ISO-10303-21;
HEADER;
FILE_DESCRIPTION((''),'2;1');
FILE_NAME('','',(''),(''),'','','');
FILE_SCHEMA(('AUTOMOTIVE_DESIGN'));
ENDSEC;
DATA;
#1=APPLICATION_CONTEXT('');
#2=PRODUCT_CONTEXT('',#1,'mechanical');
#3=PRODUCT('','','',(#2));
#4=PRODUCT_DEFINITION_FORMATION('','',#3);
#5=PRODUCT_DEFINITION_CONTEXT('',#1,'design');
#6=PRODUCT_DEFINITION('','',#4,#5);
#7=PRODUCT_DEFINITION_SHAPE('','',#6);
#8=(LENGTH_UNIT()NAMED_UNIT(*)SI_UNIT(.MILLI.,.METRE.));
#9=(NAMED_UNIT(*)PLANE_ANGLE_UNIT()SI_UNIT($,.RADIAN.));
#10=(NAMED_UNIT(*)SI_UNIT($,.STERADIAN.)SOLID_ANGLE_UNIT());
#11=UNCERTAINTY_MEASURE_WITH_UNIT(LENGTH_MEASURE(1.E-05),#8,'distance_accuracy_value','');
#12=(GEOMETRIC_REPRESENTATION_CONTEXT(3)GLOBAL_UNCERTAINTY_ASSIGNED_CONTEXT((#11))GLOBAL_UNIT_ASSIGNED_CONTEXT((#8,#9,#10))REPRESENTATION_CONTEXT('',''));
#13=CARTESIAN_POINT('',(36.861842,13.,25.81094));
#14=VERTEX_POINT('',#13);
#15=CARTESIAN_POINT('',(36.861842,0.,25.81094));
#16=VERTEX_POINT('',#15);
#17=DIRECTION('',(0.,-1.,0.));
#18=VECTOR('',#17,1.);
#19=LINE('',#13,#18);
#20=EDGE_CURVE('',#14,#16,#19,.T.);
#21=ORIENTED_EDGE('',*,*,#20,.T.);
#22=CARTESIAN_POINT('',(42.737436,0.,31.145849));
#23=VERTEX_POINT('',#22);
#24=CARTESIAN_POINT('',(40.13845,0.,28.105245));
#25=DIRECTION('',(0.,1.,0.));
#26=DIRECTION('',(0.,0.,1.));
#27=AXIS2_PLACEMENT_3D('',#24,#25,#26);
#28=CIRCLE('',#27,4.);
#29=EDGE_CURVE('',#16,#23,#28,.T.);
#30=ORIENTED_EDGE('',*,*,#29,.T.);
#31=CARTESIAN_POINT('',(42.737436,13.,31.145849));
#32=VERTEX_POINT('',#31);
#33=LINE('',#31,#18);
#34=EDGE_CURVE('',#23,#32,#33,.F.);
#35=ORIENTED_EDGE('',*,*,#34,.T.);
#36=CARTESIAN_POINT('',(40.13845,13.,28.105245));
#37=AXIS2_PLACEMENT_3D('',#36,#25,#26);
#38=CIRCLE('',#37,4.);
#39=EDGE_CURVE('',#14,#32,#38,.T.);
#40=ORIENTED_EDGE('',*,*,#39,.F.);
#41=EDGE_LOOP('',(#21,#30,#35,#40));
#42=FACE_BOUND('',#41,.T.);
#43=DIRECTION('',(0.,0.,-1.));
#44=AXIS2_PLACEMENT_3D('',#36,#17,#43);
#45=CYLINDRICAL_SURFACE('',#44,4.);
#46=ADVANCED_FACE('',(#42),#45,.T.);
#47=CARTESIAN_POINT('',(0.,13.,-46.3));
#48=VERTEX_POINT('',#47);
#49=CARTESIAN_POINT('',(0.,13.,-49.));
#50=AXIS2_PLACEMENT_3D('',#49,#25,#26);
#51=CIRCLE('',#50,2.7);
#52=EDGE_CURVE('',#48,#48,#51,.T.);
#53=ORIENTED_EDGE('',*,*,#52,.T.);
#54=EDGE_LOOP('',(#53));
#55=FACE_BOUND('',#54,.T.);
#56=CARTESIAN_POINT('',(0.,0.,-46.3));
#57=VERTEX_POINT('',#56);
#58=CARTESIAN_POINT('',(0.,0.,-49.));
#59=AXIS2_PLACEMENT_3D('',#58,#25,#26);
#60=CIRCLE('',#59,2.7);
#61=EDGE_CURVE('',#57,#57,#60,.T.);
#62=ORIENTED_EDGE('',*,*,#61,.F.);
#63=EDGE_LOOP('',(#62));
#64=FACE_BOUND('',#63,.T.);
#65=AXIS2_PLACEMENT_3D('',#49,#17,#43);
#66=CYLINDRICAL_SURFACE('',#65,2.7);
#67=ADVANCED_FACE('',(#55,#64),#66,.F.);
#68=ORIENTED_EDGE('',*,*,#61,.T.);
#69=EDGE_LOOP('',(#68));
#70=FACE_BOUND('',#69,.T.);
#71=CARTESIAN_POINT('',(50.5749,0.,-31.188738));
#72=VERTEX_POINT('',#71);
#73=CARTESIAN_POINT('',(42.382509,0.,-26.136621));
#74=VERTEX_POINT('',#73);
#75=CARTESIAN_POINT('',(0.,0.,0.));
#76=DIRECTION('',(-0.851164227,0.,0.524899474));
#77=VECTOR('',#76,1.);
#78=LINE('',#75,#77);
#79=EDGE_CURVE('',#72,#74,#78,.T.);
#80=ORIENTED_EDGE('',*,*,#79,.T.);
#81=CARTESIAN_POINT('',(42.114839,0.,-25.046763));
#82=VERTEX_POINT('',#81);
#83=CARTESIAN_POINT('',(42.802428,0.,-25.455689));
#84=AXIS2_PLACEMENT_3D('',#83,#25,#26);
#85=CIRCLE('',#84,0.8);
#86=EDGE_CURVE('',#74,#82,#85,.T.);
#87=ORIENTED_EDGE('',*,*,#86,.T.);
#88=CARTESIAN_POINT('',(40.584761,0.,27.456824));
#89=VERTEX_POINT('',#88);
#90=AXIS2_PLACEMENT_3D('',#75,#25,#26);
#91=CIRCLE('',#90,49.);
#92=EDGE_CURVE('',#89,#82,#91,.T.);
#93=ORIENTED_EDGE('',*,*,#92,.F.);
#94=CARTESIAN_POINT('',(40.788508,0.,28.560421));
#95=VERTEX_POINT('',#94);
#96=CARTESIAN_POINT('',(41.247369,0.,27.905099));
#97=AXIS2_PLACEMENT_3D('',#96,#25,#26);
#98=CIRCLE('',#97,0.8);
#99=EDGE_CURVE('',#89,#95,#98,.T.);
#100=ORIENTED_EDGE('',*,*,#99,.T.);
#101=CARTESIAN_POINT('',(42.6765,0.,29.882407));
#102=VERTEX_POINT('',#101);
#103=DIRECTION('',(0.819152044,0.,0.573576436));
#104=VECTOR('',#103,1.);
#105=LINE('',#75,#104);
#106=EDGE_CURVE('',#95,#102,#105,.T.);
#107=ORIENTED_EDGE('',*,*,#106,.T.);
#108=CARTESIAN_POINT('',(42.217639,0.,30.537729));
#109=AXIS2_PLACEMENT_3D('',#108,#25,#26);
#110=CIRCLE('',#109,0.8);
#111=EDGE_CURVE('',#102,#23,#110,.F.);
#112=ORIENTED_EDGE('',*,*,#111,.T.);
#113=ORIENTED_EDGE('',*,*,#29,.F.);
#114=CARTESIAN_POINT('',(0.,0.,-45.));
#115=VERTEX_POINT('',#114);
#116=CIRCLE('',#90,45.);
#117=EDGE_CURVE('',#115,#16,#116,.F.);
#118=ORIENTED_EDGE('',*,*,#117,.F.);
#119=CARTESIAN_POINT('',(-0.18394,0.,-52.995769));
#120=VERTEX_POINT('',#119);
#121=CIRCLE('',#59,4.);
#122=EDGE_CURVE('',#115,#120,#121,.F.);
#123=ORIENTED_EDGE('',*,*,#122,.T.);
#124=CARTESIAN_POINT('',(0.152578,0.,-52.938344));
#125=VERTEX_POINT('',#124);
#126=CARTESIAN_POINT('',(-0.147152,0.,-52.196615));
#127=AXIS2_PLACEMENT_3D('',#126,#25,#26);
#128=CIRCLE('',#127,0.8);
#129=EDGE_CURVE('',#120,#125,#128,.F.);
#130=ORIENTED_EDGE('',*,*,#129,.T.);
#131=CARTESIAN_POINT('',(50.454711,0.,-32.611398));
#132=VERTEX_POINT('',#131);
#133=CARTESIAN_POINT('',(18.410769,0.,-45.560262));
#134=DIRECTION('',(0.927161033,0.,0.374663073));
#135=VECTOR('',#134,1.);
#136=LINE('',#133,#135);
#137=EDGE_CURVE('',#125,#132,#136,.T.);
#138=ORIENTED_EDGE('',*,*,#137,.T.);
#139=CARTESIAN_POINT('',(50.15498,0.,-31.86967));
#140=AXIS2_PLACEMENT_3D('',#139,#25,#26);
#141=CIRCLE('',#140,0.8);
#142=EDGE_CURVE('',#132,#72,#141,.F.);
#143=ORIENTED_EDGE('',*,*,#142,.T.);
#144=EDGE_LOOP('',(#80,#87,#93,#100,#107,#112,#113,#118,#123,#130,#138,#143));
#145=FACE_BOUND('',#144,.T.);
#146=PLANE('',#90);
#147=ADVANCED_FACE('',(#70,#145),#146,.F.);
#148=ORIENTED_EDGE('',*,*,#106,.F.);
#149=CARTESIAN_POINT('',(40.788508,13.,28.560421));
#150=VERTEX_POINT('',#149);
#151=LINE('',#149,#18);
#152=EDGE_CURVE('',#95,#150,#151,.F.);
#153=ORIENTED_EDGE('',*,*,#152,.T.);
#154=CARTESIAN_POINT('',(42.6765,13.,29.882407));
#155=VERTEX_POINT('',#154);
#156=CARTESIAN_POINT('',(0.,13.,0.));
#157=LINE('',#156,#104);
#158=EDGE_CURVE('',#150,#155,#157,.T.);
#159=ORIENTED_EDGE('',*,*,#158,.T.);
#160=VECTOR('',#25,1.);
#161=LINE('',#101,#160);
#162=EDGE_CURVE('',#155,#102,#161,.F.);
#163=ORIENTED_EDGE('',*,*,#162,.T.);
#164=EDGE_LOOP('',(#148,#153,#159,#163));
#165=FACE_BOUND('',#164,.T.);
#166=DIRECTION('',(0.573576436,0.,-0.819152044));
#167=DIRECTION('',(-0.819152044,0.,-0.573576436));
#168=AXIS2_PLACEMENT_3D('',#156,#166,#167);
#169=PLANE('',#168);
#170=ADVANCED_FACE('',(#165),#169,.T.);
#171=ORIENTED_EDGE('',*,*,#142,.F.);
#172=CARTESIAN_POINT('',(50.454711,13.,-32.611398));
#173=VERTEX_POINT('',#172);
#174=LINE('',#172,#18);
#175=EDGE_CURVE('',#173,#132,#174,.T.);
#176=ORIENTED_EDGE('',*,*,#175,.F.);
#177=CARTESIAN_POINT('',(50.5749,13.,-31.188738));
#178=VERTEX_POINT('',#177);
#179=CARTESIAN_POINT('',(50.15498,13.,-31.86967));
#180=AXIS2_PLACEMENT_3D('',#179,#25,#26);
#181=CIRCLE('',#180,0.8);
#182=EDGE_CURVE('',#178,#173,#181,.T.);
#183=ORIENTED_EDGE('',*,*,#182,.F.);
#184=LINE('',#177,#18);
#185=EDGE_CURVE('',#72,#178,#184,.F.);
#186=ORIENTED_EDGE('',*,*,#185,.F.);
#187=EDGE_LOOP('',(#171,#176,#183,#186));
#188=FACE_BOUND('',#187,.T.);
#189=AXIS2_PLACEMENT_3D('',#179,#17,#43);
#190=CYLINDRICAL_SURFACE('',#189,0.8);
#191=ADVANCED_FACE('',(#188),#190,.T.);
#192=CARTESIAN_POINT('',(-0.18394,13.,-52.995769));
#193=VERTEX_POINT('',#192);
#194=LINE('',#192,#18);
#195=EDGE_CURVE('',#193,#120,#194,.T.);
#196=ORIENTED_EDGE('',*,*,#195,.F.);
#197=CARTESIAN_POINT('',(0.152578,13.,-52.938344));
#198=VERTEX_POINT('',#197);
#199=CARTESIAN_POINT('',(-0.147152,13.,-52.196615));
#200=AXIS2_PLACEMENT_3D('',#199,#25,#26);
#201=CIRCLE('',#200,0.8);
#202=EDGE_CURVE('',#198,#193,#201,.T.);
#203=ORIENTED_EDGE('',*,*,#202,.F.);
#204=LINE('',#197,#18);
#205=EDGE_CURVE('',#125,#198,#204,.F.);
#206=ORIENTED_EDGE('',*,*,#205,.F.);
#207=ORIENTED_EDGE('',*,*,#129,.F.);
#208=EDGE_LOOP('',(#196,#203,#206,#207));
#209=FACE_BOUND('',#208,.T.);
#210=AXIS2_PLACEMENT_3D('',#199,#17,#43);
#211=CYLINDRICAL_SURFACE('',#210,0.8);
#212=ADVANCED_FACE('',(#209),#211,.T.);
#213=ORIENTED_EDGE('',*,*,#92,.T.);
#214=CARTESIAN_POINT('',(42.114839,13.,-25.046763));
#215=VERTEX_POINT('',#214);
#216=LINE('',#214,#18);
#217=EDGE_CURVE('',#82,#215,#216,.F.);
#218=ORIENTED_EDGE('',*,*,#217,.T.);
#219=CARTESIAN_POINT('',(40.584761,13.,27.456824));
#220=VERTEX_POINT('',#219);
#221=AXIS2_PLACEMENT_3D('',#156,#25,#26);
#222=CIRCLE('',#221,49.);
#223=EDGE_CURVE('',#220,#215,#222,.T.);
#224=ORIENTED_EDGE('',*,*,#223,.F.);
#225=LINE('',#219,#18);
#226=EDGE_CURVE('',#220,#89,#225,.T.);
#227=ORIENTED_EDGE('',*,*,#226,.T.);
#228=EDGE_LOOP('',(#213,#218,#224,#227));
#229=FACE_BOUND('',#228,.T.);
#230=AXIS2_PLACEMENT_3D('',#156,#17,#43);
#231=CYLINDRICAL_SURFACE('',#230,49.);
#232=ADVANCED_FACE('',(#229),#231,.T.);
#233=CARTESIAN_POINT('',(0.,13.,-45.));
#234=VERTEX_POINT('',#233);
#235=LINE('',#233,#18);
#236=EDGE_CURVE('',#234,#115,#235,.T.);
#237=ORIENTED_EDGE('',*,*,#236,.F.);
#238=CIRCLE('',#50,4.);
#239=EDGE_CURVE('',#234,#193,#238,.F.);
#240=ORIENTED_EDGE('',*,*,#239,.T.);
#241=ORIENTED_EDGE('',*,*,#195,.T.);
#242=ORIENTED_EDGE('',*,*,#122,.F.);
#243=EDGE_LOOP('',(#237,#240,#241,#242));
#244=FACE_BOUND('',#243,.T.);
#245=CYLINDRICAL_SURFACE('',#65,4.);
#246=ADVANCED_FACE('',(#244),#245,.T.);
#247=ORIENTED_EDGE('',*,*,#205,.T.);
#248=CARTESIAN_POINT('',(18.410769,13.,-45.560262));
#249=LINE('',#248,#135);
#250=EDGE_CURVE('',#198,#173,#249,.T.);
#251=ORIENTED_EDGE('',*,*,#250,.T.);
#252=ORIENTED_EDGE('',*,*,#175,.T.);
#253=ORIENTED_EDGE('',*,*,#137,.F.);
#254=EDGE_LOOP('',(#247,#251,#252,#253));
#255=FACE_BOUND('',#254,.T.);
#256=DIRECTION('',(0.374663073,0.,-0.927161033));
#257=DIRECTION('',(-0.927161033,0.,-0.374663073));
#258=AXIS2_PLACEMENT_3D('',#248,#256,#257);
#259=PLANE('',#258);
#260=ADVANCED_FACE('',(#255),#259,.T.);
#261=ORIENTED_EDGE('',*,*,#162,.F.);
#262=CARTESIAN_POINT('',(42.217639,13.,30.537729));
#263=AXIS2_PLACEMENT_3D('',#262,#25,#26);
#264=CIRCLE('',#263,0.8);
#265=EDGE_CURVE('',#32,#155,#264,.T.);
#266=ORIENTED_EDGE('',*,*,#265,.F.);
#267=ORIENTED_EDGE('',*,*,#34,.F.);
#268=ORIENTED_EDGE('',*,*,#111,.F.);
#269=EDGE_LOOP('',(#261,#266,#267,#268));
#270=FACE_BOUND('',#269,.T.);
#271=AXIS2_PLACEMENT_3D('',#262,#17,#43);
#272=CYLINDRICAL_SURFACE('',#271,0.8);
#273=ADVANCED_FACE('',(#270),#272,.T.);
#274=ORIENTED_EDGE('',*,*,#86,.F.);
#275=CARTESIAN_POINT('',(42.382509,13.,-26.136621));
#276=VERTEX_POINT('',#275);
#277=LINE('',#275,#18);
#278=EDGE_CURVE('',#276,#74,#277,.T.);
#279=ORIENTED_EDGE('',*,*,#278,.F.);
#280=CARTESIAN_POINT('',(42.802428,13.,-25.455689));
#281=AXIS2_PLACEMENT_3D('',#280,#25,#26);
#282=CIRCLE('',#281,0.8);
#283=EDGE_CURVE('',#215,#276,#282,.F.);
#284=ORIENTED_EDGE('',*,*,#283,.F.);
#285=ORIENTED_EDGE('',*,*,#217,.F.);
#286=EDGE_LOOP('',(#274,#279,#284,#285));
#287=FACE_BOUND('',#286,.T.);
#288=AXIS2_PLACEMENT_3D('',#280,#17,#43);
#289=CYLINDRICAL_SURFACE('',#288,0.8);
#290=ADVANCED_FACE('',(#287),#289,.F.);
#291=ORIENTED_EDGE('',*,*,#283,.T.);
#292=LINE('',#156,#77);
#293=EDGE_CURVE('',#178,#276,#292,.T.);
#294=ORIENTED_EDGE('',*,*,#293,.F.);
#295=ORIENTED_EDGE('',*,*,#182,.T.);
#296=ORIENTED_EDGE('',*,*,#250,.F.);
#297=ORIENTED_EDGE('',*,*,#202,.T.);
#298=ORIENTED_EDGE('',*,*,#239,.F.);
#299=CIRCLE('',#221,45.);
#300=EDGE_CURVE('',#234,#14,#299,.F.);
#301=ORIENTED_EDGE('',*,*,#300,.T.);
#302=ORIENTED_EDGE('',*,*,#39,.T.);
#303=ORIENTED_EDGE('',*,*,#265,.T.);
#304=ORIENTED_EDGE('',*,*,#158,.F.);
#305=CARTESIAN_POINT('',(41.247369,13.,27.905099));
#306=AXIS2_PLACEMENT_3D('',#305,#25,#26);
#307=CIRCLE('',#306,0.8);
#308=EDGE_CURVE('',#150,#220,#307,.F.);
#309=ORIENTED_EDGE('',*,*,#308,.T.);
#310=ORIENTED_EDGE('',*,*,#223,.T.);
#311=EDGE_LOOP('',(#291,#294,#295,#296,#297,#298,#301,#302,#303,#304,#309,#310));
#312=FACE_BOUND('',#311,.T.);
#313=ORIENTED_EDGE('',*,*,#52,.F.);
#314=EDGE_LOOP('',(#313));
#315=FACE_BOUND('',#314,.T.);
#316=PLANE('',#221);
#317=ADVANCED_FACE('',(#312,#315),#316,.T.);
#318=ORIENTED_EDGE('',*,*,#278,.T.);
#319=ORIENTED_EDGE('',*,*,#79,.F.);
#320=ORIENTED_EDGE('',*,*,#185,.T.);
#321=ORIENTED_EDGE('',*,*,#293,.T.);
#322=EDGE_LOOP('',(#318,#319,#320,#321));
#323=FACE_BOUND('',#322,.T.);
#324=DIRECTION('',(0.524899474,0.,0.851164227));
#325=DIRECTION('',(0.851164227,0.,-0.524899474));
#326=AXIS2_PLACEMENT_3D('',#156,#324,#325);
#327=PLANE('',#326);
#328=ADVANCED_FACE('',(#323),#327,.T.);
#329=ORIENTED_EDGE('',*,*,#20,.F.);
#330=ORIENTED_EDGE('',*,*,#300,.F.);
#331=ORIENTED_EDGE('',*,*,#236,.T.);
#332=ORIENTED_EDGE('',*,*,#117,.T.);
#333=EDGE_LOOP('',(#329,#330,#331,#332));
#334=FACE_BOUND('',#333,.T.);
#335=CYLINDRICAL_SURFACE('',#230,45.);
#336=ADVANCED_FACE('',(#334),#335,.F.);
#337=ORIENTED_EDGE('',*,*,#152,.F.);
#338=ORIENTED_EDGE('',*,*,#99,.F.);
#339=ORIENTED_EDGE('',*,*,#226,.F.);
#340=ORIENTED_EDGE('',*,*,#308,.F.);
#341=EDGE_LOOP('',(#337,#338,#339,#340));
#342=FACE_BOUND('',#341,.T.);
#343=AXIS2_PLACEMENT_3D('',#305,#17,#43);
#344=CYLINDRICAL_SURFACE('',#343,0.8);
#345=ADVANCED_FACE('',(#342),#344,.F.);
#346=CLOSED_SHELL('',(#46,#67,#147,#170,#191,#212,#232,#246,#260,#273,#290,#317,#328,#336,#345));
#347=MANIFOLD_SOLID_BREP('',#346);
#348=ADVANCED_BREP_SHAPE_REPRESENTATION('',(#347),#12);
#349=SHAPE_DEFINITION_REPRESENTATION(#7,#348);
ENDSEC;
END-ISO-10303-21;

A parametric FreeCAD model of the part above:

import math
import FreeCAD as App
import Part
import Sketcher
from FreeCAD import Vector
Q = App.Units.Quantity


def edges_at(feature, points):
    """Names of the edges that pass closest to the given points."""
    edges = feature.Shape.Edges
    near = lambda p: min(range(len(edges)), key=lambda i: edges[i].distToShape(Part.Vertex(*p))[0])
    return sorted({f"Edge{near(p) + 1}" for p in points})

doc = App.newDocument("Part")
params = doc.addObject("Spreadsheet::Sheet", "Params")
for row, (alias, value) in enumerate([
    ("sketch1_radius", "4 mm"),
    ("sketch1_radius2", "45 mm"),
    ("sketch1_diameter", "5.4 mm"),
    ("sketch1_length", "56 mm"),
    ("sketch1_length2", "12 mm"),
    ("pad1_length", "13 mm"),
    ("fillet_radius", "0.8 mm"),
], start=1):
    params.set(f"A{row}", alias)
    params.set(f"B{row}", "=" + value)
    params.setAlias(f"B{row}", alias)

body = doc.addObject("PartDesign::Body", "Body")

# Sketch on XZ plane
sketch1 = body.newObject("Sketcher::SketchObject", "Sketch")
sketch1.AttachmentSupport = (doc.getObject("XZ_Plane"), [""])
sketch1.MapMode = "FlatFace"
sketch1.addGeometry([
    Part.LineSegment(Vector(51.9, -32, 0), Vector(0, -53, 0)),  # 0
    Part.ArcOfCircle(Part.Circle(Vector(0, -49, 0), Vector(0, 0, 1), 4), math.radians(90), math.radians(270)),  # 1
    Part.ArcOfCircle(Part.Circle(Vector(0, 0, 0), Vector(0, 0, 1), 45), math.radians(-90), math.radians(35)),  # 2
    Part.ArcOfCircle(Part.Circle(Vector(40.1, 28.1, 0), Vector(0, 0, 1), 4), math.radians(35), math.radians(215)),  # 3
    Part.LineSegment(Vector(43.4, 30.4, 0), Vector(40.1, 28.1, 0)),  # 4
    Part.ArcOfCircle(Part.Circle(Vector(0, 0, 0), Vector(0, 0, 1), 49), math.radians(-32), math.radians(35)),  # 5
    Part.LineSegment(Vector(41.7, -25.7, 0), Vector(51.9, -32, 0)),  # 6
    Part.Circle(Vector(0, -49, 0), Vector(0, 0, 1), 2.7),  # 7
], False)
sketch1.addConstraint([
    Sketcher.Constraint("Coincident", 0, 2, 1, 2),
    Sketcher.Constraint("Tangent", 1, 1, 2, 1),
    Sketcher.Constraint("Tangent", 2, 2, 3, 2),
    Sketcher.Constraint("Coincident", 3, 1, 4, 1),
    Sketcher.Constraint("Coincident", 4, 2, 5, 2),
    Sketcher.Constraint("Coincident", 5, 1, 6, 1),
    Sketcher.Constraint("Coincident", 6, 2, 0, 1),
    Sketcher.Constraint("Coincident", 2, 3, -1, 1),
    Sketcher.Constraint("Coincident", 5, 3, -1, 1),
    Sketcher.Constraint("Coincident", 7, 3, 1, 3),
    Sketcher.Constraint("Coincident", 4, 2, 3, 3),
    Sketcher.Constraint("Equal", 1, 3),
    Sketcher.Constraint("PointOnObject", 1, 3, -2),
    Sketcher.Constraint("PointOnObject", 0, 2, -2),
    Sketcher.Constraint("Radius", 1, 4.0),
    Sketcher.Constraint("Radius", 2, 45.0),
    Sketcher.Constraint("Diameter", 7, 5.4),
    Sketcher.Constraint("Angle", 4, Q("-145 deg")),
    Sketcher.Constraint("Distance", 0, 56.0),
    Sketcher.Constraint("Distance", 6, 12.0),
    Sketcher.Constraint("DistanceX", -1, 1, 3, 3, 40.13845),
    Sketcher.Constraint("DistanceX", 5, 1, 6, 2, 10.213971),
])
sketch1.setExpression("Constraints[14]", "Params.sketch1_radius")
sketch1.setExpression("Constraints[15]", "Params.sketch1_radius2")
sketch1.setExpression("Constraints[16]", "Params.sketch1_diameter")
sketch1.setExpression("Constraints[18]", "Params.sketch1_length")
sketch1.setExpression("Constraints[19]", "Params.sketch1_length2")
pad1 = body.newObject("PartDesign::Pad", "Pad")
pad1.Profile = sketch1
pad1.setExpression("Length", "Params.pad1_length")
pad1.Reversed = True
doc.recompute()

fillet = body.newObject("PartDesign::Fillet", "Fillet")
fillet.Base = (pad1, edges_at(pad1, [
    (51.921, 6.5, -32.019),
    (41.707, 6.5, -25.72),
    (40.138, 6.5, 28.105),
    (43.415, 6.5, 30.4),
    (0, 6.5, -53),
]))
fillet.setExpression("Radius", "Params.fillet_radius")

doc.recompute()
